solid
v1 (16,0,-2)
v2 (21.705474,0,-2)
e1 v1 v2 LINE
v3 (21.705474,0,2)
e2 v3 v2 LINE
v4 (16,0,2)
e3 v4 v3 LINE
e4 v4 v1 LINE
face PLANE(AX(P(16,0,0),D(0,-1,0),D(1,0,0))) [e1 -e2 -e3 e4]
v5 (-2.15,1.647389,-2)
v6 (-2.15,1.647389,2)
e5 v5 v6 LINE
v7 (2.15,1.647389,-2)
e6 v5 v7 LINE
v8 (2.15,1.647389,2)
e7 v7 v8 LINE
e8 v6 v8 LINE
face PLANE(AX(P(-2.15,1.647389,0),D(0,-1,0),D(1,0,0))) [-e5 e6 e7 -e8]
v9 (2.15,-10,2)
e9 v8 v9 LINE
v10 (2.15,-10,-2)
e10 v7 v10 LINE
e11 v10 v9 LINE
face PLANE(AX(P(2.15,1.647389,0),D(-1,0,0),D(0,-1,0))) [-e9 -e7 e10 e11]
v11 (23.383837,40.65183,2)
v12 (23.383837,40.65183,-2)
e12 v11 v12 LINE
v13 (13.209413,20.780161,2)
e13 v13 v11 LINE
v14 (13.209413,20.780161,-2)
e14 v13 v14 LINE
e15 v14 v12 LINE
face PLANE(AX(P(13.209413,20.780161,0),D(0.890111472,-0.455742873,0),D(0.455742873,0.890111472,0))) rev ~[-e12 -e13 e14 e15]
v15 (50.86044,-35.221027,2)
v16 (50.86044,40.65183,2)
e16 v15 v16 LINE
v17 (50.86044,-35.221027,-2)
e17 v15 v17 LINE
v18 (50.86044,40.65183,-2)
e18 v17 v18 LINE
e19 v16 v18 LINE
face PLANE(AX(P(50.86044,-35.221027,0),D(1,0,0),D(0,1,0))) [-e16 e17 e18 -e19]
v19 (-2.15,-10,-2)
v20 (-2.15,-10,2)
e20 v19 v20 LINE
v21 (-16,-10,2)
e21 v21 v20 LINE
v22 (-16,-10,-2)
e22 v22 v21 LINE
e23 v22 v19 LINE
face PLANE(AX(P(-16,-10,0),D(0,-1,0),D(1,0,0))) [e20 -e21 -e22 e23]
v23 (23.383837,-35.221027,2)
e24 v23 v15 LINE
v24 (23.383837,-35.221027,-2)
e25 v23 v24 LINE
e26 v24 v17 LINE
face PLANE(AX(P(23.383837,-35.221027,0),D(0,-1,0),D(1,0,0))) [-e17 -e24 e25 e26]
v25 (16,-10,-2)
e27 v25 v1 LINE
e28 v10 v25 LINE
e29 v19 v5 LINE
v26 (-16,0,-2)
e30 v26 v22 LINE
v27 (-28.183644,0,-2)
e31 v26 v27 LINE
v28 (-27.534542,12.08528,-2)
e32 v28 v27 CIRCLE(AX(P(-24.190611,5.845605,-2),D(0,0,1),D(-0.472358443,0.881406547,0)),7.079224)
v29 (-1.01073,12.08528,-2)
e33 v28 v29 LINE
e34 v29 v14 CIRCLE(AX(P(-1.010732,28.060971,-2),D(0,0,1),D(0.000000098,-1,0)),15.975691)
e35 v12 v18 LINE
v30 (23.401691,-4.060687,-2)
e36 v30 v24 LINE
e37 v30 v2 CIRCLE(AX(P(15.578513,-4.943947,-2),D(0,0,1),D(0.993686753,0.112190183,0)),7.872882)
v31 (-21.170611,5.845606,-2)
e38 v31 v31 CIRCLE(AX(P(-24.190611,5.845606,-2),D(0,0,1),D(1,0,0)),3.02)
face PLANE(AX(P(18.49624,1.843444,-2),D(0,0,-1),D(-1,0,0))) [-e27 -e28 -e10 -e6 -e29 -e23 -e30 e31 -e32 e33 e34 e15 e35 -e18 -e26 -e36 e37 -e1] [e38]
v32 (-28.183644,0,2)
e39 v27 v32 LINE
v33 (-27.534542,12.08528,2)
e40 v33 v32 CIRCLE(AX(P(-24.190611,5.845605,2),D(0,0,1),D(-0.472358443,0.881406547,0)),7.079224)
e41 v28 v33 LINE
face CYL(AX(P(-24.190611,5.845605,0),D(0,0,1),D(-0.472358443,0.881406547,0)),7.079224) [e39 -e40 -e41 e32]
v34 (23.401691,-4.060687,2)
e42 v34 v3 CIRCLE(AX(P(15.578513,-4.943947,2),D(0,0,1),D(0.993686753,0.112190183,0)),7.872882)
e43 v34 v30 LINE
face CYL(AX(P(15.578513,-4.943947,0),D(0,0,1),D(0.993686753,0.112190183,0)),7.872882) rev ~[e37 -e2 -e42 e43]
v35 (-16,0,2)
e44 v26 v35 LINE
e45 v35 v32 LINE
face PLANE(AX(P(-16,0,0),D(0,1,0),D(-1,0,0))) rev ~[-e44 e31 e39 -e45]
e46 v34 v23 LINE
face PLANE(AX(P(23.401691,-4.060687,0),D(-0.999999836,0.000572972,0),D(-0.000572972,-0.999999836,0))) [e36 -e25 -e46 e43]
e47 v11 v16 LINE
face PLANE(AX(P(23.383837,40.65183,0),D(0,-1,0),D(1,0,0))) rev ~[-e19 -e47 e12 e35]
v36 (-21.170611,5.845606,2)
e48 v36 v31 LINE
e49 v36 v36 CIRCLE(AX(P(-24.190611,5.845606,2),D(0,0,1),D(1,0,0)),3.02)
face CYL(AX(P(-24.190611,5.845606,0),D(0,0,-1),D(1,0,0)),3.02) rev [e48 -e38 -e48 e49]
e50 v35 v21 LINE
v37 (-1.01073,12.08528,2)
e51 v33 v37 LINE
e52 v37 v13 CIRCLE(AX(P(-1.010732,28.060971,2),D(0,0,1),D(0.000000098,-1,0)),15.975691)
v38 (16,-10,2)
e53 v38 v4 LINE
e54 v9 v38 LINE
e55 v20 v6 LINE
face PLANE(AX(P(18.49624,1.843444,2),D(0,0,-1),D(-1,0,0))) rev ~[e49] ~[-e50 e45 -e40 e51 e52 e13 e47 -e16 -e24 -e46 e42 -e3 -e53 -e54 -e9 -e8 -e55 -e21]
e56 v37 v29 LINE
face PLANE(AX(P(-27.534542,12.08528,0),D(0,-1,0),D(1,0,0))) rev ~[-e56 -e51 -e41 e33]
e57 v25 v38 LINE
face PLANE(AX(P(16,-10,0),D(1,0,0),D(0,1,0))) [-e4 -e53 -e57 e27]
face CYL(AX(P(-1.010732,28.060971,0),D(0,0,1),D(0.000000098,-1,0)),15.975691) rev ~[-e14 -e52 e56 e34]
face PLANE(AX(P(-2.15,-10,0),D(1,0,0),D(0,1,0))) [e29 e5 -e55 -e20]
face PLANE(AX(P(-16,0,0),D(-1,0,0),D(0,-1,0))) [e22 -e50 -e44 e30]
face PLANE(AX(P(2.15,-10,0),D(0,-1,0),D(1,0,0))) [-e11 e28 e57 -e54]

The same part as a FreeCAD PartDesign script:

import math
import FreeCAD as App
import Part
import Sketcher
from FreeCAD import Vector

doc = App.newDocument("Part")
body = doc.addObject("PartDesign::Body", "Body")

sketch1 = doc.addObject("Sketcher::SketchObject", "Sketch")
body.addObject(sketch1)
sketch1.AttachmentSupport = (doc.XY_Plane, [""])
sketch1.MapMode = "FlatFace"
sketch1.addGeometry([
    Part.LineSegment(Vector(-1, 12.1, 0), Vector(-27.5, 12.1, 0)),
    Part.ArcOfCircle(Part.Circle(Vector(-24.2, 5.8, 0), Vector(0, 0, 1), 7.1), math.radians(118), math.radians(236)),
    Part.LineSegment(Vector(-28.2, 0, 0), Vector(-16, 0, 0)),
    Part.LineSegment(Vector(-16, 0, 0), Vector(-16, -10, 0)),
    Part.LineSegment(Vector(-16, -10, 0), Vector(-2.1, -10, 0)),
    Part.LineSegment(Vector(-2.1, -10, 0), Vector(-2.1, 1.6, 0)),
    Part.LineSegment(Vector(-2.1, 1.6, 0), Vector(2.1, 1.6, 0)),
    Part.LineSegment(Vector(2.1, 1.6, 0), Vector(2.1, -10, 0)),
    Part.LineSegment(Vector(2.1, -10, 0), Vector(16, -10, 0)),
    Part.LineSegment(Vector(16, -10, 0), Vector(16, 0, 0)),
    Part.LineSegment(Vector(16, 0, 0), Vector(21.7, 0, 0)),
    Part.ArcOfCircle(Part.Circle(Vector(15.6, -4.9, 0), Vector(0, 0, 1), 7.9), math.radians(6), math.radians(39)),
    Part.LineSegment(Vector(23.4, -4.1, 0), Vector(23.4, -35.2, 0)),
    Part.LineSegment(Vector(23.4, -35.2, 0), Vector(50.9, -35.2, 0)),
    Part.LineSegment(Vector(50.9, -35.2, 0), Vector(50.9, 40.7, 0)),
    Part.LineSegment(Vector(50.9, 40.7, 0), Vector(23.4, 40.7, 0)),
    Part.LineSegment(Vector(23.4, 40.7, 0), Vector(13.2, 20.8, 0)),
    Part.ArcOfCircle(Part.Circle(Vector(-1, 28.1, 0), Vector(0, 0, 1), 16), math.radians(-90), math.radians(-27)),
    Part.Circle(Vector(-24.2, 5.8, 0), Vector(0, 0, 1), 3),
], False)
sketch1.addConstraint([
    Sketcher.Constraint("Coincident", 0, 2, 1, 1),
    Sketcher.Constraint("Coincident", 1, 2, 2, 1),
    Sketcher.Constraint("Coincident", 2, 2, 3, 1),
    Sketcher.Constraint("Coincident", 3, 2, 4, 1),
    Sketcher.Constraint("Coincident", 4, 2, 5, 1),
    Sketcher.Constraint("Coincident", 5, 2, 6, 1),
    Sketcher.Constraint("Coincident", 6, 2, 7, 1),
    Sketcher.Constraint("Coincident", 7, 2, 8, 1),
    Sketcher.Constraint("Coincident", 8, 2, 9, 1),
    Sketcher.Constraint("Coincident", 9, 2, 10, 1),
    Sketcher.Constraint("Coincident", 10, 2, 11, 2),
    Sketcher.Constraint("Coincident", 11, 1, 12, 1),
    Sketcher.Constraint("Coincident", 12, 2, 13, 1),
    Sketcher.Constraint("Coincident", 13, 2, 14, 1),
    Sketcher.Constraint("Coincident", 14, 2, 15, 1),
    Sketcher.Constraint("Coincident", 15, 2, 16, 1),
    Sketcher.Constraint("Tangent", 16, 2, 17, 2),
    Sketcher.Constraint("Tangent", 17, 1, 0, 1),
    Sketcher.Constraint("Horizontal", 0),
    Sketcher.Constraint("Horizontal", 2),
    Sketcher.Constraint("Vertical", 3),
    Sketcher.Constraint("Horizontal", 4),
    Sketcher.Constraint("Vertical", 5),
    Sketcher.Constraint("Horizontal", 6),
    Sketcher.Constraint("Vertical", 7),
    Sketcher.Constraint("Horizontal", 8),
    Sketcher.Constraint("Vertical", 9),
    Sketcher.Constraint("Horizontal", 10),
    Sketcher.Constraint("Horizontal", 13),
    Sketcher.Constraint("Vertical", 14),
    Sketcher.Constraint("Horizontal", 15),
    Sketcher.Constraint("Coincident", 18, 3, 1, 3),
    Sketcher.Constraint("Symmetric", 2, 2, 9, 2, -1, 1),
    Sketcher.Constraint("Symmetric", 4, 2, 7, 2, -2),
    Sketcher.Constraint("PointOnObject", 1, 2, -1),
    Sketcher.Constraint("Vertical", 12, 2, 15, 2),
    Sketcher.Constraint("Diameter", 18, 6.04),
    Sketcher.Constraint("DistanceY", 3, 2, 3, 1, 10.0),
    Sketcher.Constraint("DistanceX", 6, 1, 6, 2, 4.3),
    Sketcher.Constraint("DistanceX", 2, 2, -1, 1, 16.0),
    Sketcher.Constraint("Radius", 11, 7.872882),
    Sketcher.Constraint("Radius", 17, 15.975691),
    Sketcher.Constraint("Radius", 1, 7.079224),
    Sketcher.Constraint("DistanceX", 0, 2, 0, 1, 26.523812),
    Sketcher.Constraint("DistanceY", 5, 1, 5, 2, 11.647389),
    Sketcher.Constraint("DistanceX", 1, 2, 0, 2, 0.649102),
    Sketcher.Constraint("Distance", 16, 22.324922),
    Sketcher.Constraint("DistanceX", 2, 1, 2, 2, 12.183644),
    Sketcher.Constraint("DistanceX", 10, 1, 10, 2, 5.705474),
    Sketcher.Constraint("DistanceX", 13, 1, 13, 2, 27.476603),
    Sketcher.Constraint("DistanceY", 14, 1, 14, 2, 75.872857),
    Sketcher.Constraint("DistanceX", 1, 3, -1, 1, 24.190611),
    Sketcher.Constraint("DistanceX", -1, 1, 11, 1, 23.401691),
    Sketcher.Constraint("DistanceX", -1, 1, 13, 2, 50.86044),
    Sketcher.Constraint("DistanceY", 11, 3, 17, 3, 33.004918),
])
pad1 = doc.addObject("PartDesign::Pad", "Pad")
body.addObject(pad1)
pad1.Profile = sketch1
pad1.Length = 4
pad1.Midplane = True

doc.recompute()
